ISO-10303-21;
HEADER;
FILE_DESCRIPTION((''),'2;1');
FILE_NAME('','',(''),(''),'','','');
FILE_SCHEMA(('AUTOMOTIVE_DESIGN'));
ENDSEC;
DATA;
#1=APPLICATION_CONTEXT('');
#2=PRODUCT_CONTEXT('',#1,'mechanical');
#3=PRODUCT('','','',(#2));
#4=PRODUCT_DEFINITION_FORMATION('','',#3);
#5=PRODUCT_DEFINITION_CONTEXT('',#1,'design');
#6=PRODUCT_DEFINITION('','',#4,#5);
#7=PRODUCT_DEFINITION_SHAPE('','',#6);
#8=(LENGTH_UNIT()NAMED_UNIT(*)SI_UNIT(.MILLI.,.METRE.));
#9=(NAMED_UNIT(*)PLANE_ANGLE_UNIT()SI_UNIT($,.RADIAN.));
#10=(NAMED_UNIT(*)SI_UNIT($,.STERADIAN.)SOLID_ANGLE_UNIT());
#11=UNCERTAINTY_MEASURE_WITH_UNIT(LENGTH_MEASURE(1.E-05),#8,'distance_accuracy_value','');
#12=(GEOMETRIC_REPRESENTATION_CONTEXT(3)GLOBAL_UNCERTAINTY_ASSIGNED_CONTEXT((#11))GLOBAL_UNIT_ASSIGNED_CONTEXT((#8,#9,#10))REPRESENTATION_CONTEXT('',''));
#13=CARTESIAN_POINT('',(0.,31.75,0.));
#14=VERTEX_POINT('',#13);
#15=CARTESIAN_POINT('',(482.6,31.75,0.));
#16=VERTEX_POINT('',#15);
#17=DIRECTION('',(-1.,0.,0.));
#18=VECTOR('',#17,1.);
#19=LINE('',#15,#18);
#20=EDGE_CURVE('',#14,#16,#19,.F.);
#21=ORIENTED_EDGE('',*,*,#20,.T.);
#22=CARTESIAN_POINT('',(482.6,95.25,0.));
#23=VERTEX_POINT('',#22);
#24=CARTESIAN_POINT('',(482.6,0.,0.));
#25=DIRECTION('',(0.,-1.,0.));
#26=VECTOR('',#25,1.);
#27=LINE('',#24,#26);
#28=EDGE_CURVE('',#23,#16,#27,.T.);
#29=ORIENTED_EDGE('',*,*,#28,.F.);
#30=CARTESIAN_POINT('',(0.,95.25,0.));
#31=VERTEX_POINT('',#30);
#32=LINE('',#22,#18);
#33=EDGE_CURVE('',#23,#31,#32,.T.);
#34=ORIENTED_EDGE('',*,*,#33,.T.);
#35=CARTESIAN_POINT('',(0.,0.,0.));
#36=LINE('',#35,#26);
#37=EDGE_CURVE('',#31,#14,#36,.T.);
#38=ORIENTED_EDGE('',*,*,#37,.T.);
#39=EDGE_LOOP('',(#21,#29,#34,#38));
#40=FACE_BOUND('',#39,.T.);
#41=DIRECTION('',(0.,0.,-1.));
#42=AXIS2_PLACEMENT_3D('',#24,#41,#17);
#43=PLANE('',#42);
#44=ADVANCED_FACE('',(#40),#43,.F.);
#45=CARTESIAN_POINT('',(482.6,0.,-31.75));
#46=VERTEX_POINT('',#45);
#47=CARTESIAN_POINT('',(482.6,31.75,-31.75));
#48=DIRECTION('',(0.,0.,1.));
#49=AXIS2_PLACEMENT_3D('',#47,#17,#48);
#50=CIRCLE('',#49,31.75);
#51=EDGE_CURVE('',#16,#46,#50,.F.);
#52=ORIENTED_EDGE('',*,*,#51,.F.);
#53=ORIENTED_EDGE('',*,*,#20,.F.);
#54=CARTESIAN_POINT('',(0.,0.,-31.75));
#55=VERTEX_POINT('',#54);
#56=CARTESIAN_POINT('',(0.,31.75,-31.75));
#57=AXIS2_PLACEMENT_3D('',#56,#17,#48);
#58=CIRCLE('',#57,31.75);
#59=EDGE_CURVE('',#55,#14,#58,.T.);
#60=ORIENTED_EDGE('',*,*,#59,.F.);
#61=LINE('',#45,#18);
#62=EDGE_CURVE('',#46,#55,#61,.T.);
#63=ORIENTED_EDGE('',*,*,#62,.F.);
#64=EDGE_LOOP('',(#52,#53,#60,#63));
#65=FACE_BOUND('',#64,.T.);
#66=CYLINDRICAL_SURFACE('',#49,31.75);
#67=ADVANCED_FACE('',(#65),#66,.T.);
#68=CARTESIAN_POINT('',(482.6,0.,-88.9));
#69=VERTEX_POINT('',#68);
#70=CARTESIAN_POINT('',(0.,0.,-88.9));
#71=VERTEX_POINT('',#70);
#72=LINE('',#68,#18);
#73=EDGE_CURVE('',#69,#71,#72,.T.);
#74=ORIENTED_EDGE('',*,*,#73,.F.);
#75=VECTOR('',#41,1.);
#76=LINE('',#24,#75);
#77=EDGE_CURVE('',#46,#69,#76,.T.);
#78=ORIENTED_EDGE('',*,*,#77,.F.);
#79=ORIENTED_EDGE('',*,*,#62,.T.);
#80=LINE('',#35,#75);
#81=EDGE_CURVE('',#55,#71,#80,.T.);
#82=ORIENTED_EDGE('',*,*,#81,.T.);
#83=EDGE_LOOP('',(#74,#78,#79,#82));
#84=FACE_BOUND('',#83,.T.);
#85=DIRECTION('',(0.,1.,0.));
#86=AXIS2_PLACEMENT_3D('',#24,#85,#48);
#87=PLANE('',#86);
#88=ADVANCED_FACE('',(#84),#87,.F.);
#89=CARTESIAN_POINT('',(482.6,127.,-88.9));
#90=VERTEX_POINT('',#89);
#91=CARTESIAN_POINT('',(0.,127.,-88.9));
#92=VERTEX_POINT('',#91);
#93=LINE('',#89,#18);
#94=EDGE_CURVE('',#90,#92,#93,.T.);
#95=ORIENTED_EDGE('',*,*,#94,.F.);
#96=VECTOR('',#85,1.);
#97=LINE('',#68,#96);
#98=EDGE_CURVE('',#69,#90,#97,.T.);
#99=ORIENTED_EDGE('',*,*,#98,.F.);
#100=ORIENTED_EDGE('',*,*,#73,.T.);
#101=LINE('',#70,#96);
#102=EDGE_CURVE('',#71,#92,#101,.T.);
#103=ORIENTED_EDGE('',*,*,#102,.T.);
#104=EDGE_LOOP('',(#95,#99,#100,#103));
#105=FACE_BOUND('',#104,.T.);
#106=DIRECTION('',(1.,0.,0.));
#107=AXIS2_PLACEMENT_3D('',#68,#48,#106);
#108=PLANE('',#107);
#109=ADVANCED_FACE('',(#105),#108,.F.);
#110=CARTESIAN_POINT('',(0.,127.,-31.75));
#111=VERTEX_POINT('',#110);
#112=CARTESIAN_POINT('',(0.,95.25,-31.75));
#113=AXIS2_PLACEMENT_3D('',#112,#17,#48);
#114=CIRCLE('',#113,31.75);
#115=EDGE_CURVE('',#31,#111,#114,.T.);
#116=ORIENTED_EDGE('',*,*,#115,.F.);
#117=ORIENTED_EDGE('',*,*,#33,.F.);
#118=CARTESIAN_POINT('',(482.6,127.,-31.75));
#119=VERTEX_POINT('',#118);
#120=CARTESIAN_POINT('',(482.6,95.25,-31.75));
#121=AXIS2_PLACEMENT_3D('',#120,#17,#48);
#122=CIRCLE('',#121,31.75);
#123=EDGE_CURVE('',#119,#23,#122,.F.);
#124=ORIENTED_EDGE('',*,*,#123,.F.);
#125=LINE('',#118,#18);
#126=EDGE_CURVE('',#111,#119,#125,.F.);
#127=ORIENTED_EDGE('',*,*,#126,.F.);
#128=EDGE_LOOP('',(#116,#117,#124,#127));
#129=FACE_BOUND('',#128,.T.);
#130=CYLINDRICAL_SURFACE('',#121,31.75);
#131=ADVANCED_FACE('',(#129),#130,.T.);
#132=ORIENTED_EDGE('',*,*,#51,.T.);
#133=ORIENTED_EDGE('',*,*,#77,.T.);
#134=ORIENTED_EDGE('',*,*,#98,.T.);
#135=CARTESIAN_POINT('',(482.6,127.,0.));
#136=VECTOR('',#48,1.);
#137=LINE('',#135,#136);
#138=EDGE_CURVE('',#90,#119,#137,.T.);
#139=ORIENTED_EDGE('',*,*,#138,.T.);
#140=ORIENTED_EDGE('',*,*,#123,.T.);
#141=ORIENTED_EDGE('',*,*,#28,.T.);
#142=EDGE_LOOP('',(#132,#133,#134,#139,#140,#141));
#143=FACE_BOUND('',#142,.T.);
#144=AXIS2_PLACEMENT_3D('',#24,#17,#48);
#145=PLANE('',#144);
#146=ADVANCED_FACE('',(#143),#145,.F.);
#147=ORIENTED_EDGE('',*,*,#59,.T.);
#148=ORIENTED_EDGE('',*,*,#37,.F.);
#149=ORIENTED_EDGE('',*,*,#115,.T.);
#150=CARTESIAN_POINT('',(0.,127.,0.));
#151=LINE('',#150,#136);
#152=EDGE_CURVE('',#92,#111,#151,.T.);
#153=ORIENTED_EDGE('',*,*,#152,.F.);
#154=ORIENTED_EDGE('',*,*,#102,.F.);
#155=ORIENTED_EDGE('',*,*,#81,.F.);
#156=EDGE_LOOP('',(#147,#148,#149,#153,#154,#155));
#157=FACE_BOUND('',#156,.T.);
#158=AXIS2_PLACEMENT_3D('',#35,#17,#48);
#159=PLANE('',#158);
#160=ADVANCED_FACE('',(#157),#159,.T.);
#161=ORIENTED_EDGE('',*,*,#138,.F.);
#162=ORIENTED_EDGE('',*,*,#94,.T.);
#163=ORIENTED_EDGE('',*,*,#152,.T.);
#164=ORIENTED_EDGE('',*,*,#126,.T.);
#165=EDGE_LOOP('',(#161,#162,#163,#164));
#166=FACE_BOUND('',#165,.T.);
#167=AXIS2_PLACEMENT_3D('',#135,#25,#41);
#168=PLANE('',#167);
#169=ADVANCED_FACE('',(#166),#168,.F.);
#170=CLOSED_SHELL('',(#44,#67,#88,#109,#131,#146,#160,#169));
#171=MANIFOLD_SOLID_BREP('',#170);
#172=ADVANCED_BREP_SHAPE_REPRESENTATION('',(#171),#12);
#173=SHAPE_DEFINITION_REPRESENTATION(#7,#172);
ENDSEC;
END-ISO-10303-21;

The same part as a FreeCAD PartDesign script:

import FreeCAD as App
import Part
import Sketcher

V = App.Vector
Q = App.Units.Quantity


def edges_at(feature, points):
    """Names of the edges that pass closest to the given points."""
    edges = feature.Shape.Edges
    near = lambda p: min(range(len(edges)), key=lambda i: edges[i].distToShape(Part.Vertex(*p))[0])
    return sorted({f"Edge{near(p) + 1}" for p in points})


def add_polygon(sketch, points):
    """Adds a closed chain of lines whose ends are joined by coincident constraints."""
    first, n = sketch.GeometryCount, len(points)
    for a, b in zip(points, points[1:] + points[:1]):
        sketch.addGeometry(Part.LineSegment(App.Vector(*a, 0), App.Vector(*b, 0)), False)
    for i in range(n):
        sketch.addConstraint(Sketcher.Constraint("Coincident", first + i, 2, first + (i + 1) % n, 1))

doc = App.newDocument("Part")
params = doc.addObject("Spreadsheet::Sheet", "Params")
for row, (alias, value) in enumerate([
    ("sketch1_width", "5 in"),
    ("sketch1_height", "3.5 in"),
    ("pad1_length", "19 in"),
    ("fillet_radius", "1.25 in"),
], start=1):
    params.set(f"A{row}", alias)
    params.set(f"B{row}", "=" + value)
    params.setAlias(f"B{row}", alias)

body = doc.addObject("PartDesign::Body", "Body")

# Sketch on YZ plane
sketch1 = body.newObject("Sketcher::SketchObject", "Sketch")
sketch1.AttachmentSupport = (doc.getObject("YZ_Plane"), [""])
sketch1.MapMode = "FlatFace"
add_polygon(sketch1, [(127, 0), (0, 0), (0, -89), (127, -89)])  # lines 0-3
sketch1.addConstraint(Sketcher.Constraint("Horizontal", 0))
sketch1.addConstraint(Sketcher.Constraint("Vertical", 1))
sketch1.addConstraint(Sketcher.Constraint("Horizontal", 2))
sketch1.addConstraint(Sketcher.Constraint("Vertical", 3))
sketch1.addConstraint(Sketcher.Constraint("Coincident", 0, 2, -1, 1))
sketch1.addConstraint(Sketcher.Constraint("DistanceX", 0, 2, 0, 1, Q("5 in")))
sketch1.addConstraint(Sketcher.Constraint("DistanceY", 1, 2, 1, 1, Q("3.5 in")))
sketch1.setExpression("Constraints[9]", "Params.sketch1_width")
sketch1.setExpression("Constraints[10]", "Params.sketch1_height")
pad1 = body.newObject("PartDesign::Pad", "Pad")
pad1.Profile = sketch1
pad1.setExpression("Length", "Params.pad1_length")
doc.recompute()

fillet = body.newObject("PartDesign::Fillet", "Fillet")
fillet.Base = (pad1, edges_at(pad1, [(241.3, 127, 0), (241.3, 0, 0)]))
fillet.setExpression("Radius", "Params.fillet_radius")

doc.recompute()
